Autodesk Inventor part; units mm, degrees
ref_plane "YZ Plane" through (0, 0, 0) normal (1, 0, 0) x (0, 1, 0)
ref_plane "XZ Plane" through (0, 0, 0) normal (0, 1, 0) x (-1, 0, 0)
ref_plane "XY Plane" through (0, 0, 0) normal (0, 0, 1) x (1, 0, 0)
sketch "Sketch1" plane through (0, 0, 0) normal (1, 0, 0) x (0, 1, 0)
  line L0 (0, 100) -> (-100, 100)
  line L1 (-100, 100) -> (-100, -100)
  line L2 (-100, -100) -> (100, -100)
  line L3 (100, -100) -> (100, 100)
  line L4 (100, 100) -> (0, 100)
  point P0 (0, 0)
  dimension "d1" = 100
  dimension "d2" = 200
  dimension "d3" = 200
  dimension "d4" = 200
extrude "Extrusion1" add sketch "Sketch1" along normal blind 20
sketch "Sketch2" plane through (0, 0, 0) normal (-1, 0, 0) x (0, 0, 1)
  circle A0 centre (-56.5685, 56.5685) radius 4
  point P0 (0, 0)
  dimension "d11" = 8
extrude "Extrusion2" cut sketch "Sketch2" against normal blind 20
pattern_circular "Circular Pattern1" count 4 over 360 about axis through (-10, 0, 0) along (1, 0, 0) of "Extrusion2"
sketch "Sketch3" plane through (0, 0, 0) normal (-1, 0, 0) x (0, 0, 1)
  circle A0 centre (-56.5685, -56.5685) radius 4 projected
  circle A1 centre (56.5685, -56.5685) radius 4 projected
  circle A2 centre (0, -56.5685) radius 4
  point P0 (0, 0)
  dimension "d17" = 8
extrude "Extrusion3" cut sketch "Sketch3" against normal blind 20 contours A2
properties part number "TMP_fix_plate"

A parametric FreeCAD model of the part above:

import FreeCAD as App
import Part
import Sketcher
from FreeCAD import Vector


def add_polygon(sketch, points):
    """Adds a closed chain of lines whose ends are joined by coincident constraints."""
    first, n = sketch.GeometryCount, len(points)
    for a, b in zip(points, points[1:] + points[:1]):
        sketch.addGeometry(Part.LineSegment(App.Vector(*a, 0), App.Vector(*b, 0)), False)
    for i in range(n):
        sketch.addConstraint(Sketcher.Constraint("Coincident", first + i, 2, first + (i + 1) % n, 1))

doc = App.newDocument("Part")
body = doc.addObject("PartDesign::Body", "Body")

# Sketch on YZ plane
sketch1 = body.newObject("Sketcher::SketchObject", "Sketch")
sketch1.AttachmentSupport = (doc.getObject("YZ_Plane"), [""])
sketch1.MapMode = "FlatFace"
add_polygon(sketch1, [(100, 100), (-100, 100), (-100, -100), (100, -100)])  # lines 0-3
sketch1.addConstraint(Sketcher.Constraint("Horizontal", 0))
sketch1.addConstraint(Sketcher.Constraint("Vertical", 1))
sketch1.addConstraint(Sketcher.Constraint("Horizontal", 2))
sketch1.addConstraint(Sketcher.Constraint("Vertical", 3))
sketch1.addConstraint(Sketcher.Constraint("Symmetric", 0, 2, 2, 2, -1, 1))
sketch1.addConstraint(Sketcher.Constraint("Equal", 2, 1))
sketch1.addConstraint(Sketcher.Constraint("DistanceX", 0, 2, 0, 1, 200.0))
pad1 = body.newObject("PartDesign::Pad", "Pad")
pad1.Profile = sketch1
pad1.Length = 20

# Sketch on YZ plane
sketch2 = body.newObject("Sketcher::SketchObject", "Sketch001")
sketch2.AttachmentSupport = (doc.getObject("YZ_Plane"), [""])
sketch2.MapMode = "FlatFace"
sketch2.addGeometry(Part.Circle(Vector(56.6, -56.6, 0), Vector(0, 0, 1), 4), False)
sketch2.addConstraint(Sketcher.Constraint("Diameter", 0, 8.0))
sketch2.addConstraint(Sketcher.Constraint("DistanceX", -1, 1, 0, 3, 56.5685))
sketch2.addConstraint(Sketcher.Constraint("DistanceY", 0, 3, -1, 1, 56.5685))
pocket1 = body.newObject("PartDesign::Pocket", "Pocket")
pocket1.Profile = sketch2
pocket1.Length = 20
pocket1.Reversed = True
doc.recompute()

polarpattern = body.newObject("PartDesign::PolarPattern", "PolarPattern")
polarpattern.Originals = [pocket1]
polarpattern.Axis = (doc.getObject("X_Axis"), [""])
polarpattern.Angle = 360
polarpattern.Occurrences = 4
body.Tip = polarpattern

# Sketch on YZ plane
sketch3 = body.newObject("Sketcher::SketchObject", "Sketch002")
sketch3.AttachmentSupport = (doc.getObject("YZ_Plane"), [""])
sketch3.MapMode = "FlatFace"
sketch3.addGeometry(Part.Circle(Vector(-56.6, 0, 0), Vector(0, 0, 1), 4), False)
sketch3.addConstraint(Sketcher.Constraint("PointOnObject", 0, 3, -1))
sketch3.addConstraint(Sketcher.Constraint("Diameter", 0, 8.0))
sketch3.addConstraint(Sketcher.Constraint("DistanceX", 0, 3, -1, 1, 56.5685))
pocket2 = body.newObject("PartDesign::Pocket", "Pocket001")
pocket2.Profile = sketch3
pocket2.Length = 20
pocket2.Reversed = True

doc.recompute()
